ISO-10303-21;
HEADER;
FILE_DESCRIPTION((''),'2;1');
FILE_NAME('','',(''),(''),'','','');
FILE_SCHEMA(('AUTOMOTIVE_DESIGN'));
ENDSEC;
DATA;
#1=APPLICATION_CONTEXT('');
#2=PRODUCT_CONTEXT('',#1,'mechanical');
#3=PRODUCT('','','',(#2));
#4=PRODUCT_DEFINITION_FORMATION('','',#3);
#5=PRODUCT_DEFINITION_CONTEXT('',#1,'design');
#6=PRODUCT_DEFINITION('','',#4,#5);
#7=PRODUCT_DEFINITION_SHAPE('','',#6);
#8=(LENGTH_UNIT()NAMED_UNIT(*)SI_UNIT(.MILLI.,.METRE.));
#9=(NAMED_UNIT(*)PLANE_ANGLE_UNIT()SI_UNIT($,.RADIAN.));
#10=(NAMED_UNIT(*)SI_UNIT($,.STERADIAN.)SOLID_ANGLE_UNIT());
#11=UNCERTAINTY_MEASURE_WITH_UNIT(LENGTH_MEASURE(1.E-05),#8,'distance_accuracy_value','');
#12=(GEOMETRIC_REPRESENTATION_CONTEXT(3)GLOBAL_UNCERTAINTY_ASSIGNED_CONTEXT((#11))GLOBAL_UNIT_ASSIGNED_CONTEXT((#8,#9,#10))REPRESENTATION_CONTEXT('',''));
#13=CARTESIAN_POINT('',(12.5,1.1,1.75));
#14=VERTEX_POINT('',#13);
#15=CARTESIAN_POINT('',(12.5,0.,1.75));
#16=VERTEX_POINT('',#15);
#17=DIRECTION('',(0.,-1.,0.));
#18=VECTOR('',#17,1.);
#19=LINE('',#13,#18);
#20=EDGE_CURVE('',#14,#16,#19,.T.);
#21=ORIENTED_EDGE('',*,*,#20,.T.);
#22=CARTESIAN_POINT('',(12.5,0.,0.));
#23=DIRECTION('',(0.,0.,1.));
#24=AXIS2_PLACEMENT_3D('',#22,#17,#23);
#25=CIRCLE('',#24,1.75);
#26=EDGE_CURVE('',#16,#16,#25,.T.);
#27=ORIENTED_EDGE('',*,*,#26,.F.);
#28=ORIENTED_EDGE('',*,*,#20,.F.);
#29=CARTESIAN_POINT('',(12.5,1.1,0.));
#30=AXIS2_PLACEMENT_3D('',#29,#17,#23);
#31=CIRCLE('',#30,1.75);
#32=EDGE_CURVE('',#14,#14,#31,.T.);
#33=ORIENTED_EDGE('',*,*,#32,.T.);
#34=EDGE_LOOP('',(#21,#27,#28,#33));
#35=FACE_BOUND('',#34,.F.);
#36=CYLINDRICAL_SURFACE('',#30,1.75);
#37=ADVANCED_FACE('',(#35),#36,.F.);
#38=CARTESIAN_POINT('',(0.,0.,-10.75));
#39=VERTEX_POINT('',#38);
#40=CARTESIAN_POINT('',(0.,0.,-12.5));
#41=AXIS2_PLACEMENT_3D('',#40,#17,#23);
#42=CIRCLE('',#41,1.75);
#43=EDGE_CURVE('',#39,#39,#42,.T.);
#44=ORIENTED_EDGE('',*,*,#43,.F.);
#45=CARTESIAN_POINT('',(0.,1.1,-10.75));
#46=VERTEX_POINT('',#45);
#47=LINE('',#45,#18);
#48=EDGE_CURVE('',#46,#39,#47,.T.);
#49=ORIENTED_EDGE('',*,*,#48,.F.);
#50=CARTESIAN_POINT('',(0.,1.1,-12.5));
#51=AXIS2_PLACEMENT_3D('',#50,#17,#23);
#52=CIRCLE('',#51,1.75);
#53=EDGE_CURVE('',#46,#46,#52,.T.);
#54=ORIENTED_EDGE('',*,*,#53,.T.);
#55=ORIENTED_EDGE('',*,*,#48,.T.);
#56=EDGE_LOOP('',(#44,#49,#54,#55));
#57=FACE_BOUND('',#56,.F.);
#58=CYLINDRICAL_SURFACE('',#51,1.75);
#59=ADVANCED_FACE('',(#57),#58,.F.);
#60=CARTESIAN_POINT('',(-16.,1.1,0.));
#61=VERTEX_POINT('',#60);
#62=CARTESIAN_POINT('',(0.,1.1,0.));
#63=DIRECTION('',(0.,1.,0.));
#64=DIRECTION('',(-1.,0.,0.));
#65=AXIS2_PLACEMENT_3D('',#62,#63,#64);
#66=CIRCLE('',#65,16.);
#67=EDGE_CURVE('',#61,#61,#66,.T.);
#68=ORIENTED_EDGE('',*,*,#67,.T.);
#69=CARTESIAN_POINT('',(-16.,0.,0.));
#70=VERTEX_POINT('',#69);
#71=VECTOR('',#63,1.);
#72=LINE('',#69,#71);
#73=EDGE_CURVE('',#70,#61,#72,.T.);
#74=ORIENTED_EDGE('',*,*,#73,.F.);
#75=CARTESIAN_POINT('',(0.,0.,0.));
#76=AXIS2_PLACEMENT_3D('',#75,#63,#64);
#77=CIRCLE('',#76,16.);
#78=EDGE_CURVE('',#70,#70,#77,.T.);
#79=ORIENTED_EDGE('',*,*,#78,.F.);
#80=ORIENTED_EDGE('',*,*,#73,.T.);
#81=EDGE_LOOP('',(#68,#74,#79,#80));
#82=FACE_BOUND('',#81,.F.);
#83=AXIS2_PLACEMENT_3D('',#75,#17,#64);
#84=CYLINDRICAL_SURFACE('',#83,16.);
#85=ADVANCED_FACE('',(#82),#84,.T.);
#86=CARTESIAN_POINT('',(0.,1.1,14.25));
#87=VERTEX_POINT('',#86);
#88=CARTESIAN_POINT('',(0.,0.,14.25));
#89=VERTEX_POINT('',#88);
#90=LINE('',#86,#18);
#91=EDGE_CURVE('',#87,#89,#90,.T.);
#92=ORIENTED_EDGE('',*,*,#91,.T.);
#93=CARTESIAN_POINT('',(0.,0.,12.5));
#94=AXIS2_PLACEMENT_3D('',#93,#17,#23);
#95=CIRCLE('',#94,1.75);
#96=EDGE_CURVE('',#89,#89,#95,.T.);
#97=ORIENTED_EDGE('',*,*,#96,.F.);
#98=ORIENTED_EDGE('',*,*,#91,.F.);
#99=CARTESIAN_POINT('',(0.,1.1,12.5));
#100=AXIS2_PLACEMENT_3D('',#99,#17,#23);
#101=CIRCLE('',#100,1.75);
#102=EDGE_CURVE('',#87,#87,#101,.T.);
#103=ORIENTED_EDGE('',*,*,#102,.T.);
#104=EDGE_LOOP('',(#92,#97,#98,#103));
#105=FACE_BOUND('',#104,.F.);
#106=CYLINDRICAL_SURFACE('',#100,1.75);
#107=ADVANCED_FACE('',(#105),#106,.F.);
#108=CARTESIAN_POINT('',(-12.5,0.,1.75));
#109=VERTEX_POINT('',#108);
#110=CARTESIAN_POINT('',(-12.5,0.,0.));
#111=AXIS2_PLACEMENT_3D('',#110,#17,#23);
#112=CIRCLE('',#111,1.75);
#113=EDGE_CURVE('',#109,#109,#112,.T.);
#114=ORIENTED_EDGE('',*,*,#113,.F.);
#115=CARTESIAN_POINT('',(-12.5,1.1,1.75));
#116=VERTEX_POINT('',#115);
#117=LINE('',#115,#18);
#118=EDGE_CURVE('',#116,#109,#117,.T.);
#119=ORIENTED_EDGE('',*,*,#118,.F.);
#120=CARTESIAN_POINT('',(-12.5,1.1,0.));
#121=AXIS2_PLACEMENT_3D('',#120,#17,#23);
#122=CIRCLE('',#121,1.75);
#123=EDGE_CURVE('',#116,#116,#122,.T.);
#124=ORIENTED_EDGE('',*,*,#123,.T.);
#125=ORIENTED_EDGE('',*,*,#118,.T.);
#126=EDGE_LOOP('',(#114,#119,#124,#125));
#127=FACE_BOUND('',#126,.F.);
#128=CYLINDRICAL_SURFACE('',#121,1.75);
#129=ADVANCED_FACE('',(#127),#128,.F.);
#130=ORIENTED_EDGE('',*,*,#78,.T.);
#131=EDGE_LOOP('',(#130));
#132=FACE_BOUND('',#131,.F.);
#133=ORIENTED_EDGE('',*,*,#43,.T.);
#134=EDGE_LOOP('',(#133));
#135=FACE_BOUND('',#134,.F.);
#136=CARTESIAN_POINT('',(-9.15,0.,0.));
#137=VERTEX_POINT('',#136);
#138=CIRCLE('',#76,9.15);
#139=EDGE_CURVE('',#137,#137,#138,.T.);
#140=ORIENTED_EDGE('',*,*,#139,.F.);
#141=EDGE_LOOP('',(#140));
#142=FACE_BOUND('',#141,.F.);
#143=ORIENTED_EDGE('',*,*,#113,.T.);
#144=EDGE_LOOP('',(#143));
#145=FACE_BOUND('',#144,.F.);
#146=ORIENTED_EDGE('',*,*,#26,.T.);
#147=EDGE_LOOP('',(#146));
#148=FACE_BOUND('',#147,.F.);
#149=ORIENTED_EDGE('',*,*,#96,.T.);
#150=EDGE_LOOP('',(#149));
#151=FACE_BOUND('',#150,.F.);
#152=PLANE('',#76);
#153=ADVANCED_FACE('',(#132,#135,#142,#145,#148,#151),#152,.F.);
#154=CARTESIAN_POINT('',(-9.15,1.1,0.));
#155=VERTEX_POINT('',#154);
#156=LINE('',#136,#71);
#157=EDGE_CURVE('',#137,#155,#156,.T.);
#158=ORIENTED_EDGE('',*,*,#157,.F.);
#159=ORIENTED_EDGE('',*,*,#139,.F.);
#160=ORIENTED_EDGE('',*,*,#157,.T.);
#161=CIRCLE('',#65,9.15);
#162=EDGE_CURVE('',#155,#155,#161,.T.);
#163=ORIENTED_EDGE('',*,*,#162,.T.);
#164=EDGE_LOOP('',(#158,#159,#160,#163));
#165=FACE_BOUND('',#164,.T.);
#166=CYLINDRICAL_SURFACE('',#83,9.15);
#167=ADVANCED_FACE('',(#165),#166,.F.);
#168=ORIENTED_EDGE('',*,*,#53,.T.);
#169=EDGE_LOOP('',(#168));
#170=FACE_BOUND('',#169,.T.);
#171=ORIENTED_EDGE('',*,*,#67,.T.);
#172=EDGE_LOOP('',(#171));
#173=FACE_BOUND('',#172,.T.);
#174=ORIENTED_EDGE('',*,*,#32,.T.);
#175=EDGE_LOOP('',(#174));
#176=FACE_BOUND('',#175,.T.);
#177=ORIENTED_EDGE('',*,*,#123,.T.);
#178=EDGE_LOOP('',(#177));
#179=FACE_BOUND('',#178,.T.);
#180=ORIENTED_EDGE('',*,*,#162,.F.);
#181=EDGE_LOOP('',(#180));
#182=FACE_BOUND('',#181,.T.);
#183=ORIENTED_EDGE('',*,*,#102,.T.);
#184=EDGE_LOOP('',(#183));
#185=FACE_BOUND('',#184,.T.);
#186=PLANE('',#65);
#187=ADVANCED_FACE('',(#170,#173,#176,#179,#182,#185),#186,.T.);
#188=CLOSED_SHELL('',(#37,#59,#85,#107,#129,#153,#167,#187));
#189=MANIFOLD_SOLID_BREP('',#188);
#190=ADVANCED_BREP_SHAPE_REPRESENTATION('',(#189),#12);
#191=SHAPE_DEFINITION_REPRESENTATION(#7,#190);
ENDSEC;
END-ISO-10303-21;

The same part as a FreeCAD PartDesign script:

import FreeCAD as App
import Part
import Sketcher
from FreeCAD import Vector

doc = App.newDocument("Part")
params = doc.addObject("Spreadsheet::Sheet", "Params")
for row, (alias, value) in enumerate([
    ("sketch1_diameter", "32 mm"),
    ("sketch1_diameter2", "18.3 mm"),
    ("pad1_length", "1.1 mm"),
    ("sketch2_diameter", "3.5 mm"),
    ("hole_diameter", "3.5 mm"),
], start=1):
    params.set(f"A{row}", alias)
    params.set(f"B{row}", "=" + value)
    params.setAlias(f"B{row}", alias)

body = doc.addObject("PartDesign::Body", "Body")

sketch1 = body.newObject("Sketcher::SketchObject", "Sketch")
sketch1.AttachmentSupport = (doc.getObject("XZ_Plane"), [""])
sketch1.MapMode = "FlatFace"
sketch1.addGeometry([
    Part.Circle(Vector(0, 0, 0), Vector(0, 0, 1), 16),
    Part.Circle(Vector(0, 0, 0), Vector(0, 0, 1), 9),
], False)
sketch1.addConstraint([
    Sketcher.Constraint("Coincident", 0, 3, -1, 1),
    Sketcher.Constraint("Coincident", 1, 3, -1, 1),
    Sketcher.Constraint("Diameter", 0, 32.0),
    Sketcher.Constraint("Diameter", 1, 18.3),
])
sketch1.setExpression("Constraints[2]", "Params.sketch1_diameter")
sketch1.setExpression("Constraints[3]", "Params.sketch1_diameter2")
pad1 = body.newObject("PartDesign::Pad", "Pad")
pad1.Profile = sketch1
pad1.setExpression("Length", "Params.pad1_length")
pad1.Reversed = True

sketch2 = body.newObject("Sketcher::SketchObject", "Sketch001")
sketch2.AttachmentSupport = (doc.getObject("XZ_Plane"), [""])
sketch2.MapMode = "FlatFace"
sketch2.AttachmentOffset = App.Placement(Vector(0, 0, -1.1), App.Rotation())
sketch2.addGeometry([
    Part.Circle(Vector(-12.5, 0, 0), Vector(0, 0, 1), 1.8),
    Part.Circle(Vector(0, -12.5, 0), Vector(0, 0, 1), 1.8),
    Part.Circle(Vector(12.5, 0, 0), Vector(0, 0, 1), 1.8),
    Part.Circle(Vector(0, 12.5, 0), Vector(0, 0, 1), 1.8),
], False)
sketch2.addConstraint([
    Sketcher.Constraint("Equal", 0, 1),
    Sketcher.Constraint("Equal", 1, 2),
    Sketcher.Constraint("Equal", 2, 3),
    Sketcher.Constraint("Symmetric", 0, 3, 2, 3, -1, 1),
    Sketcher.Constraint("Symmetric", 1, 3, 3, 3, -1, 1),
    Sketcher.Constraint("PointOnObject", 0, 3, -1),
    Sketcher.Constraint("PointOnObject", 1, 3, -2),
    Sketcher.Constraint("Diameter", 0, 3.5),
    Sketcher.Constraint("DistanceX", 0, 3, 2, 3, 25.0),
    Sketcher.Constraint("DistanceY", 1, 3, 3, 3, 25.0),
])
sketch2.setExpression("Constraints[7]", "Params.sketch2_diameter")
doc.recompute()
hole = body.newObject("PartDesign::Hole", "Hole")
hole.Profile = sketch2
hole.ThreadType = "None"
hole.setExpression("Diameter", "Params.hole_diameter")
hole.DepthType = "ThroughAll"
hole.Reversed = True

doc.recompute()
